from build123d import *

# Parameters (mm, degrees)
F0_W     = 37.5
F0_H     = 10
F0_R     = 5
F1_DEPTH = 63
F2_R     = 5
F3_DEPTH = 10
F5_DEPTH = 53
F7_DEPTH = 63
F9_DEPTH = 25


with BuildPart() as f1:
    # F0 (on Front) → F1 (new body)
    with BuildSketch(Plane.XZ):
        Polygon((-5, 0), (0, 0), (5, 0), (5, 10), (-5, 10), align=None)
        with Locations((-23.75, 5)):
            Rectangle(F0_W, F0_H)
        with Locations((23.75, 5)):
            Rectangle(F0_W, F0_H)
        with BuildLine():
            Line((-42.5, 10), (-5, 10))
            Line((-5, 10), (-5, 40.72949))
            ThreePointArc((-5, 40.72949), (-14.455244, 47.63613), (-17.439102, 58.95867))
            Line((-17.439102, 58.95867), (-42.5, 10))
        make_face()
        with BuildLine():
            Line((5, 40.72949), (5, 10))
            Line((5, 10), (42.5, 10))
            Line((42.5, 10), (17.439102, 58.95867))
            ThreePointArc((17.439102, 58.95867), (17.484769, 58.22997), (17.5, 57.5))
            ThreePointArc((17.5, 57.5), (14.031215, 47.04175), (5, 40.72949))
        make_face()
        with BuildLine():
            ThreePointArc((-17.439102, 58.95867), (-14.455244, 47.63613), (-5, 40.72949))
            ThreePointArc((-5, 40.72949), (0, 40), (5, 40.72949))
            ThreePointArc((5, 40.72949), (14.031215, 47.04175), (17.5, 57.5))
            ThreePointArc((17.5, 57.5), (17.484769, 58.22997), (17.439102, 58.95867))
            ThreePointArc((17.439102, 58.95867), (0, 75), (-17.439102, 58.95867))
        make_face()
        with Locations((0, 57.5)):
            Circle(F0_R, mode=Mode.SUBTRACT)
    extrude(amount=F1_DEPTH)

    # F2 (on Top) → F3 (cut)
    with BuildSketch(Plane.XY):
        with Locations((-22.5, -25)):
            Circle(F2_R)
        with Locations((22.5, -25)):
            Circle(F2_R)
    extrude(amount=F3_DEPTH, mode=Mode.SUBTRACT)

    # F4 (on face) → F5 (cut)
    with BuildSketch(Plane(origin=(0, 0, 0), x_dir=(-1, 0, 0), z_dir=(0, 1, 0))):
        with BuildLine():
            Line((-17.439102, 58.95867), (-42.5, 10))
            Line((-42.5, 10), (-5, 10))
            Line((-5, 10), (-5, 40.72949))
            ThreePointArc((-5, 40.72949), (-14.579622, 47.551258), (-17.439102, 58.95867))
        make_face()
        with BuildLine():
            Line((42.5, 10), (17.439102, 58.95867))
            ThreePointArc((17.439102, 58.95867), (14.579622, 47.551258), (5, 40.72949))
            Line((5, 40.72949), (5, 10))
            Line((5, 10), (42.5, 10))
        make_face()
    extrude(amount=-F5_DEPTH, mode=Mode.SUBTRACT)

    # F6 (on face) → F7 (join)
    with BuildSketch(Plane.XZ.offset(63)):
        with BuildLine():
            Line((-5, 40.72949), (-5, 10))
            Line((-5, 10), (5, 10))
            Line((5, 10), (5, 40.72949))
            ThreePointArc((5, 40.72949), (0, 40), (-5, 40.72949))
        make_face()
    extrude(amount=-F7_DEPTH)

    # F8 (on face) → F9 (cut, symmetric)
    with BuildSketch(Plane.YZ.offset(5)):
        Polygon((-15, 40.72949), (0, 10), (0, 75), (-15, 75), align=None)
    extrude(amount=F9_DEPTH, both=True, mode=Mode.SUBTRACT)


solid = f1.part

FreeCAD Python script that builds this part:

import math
import FreeCAD as App
import Part
import Sketcher

V = App.Vector
Q = App.Units.Quantity

doc = App.newDocument("Part")
body = doc.addObject("PartDesign::Body", "Body")

# Sketch on XZ plane
sketch1 = body.newObject("Sketcher::SketchObject", "Sketch")
sketch1.AttachmentSupport = (doc.getObject("XZ_Plane"), [""])
sketch1.MapMode = "FlatFace"
sketch1.addGeometry([
    Part.LineSegment(V(-42, 10, 0), V(-42, 0, 0)),  # 0
    Part.LineSegment(V(-42, 0, 0), V(42, 0, 0)),  # 1
    Part.LineSegment(V(42, 0, 0), V(42, 10, 0)),  # 2
    Part.LineSegment(V(42, 10, 0), V(17, 59, 0)),  # 3
    Part.ArcOfCircle(Part.Circle(V(0, 58, 0), V(0, 0, 1), 17), math.radians(5), math.radians(175)),  # 4
    Part.LineSegment(V(-17, 59, 0), V(-42, 10, 0)),  # 5
    Part.LineSegment(V(5, 41, 0), V(5, 10, 0)),  # 6
    Part.LineSegment(V(5, 10, 0), V(-5, 10, 0)),  # 7
    Part.LineSegment(V(-5, 10, 0), V(-5, 41, 0)),  # 8
    Part.ArcOfCircle(Part.Circle(V(0, 58, 0), V(0, 0, 1), 18), math.radians(-107), math.radians(-73)),  # 9
    Part.Circle(V(0, 58, 0), V(0, 0, 1), 5),  # 10
], False)
sketch1.addConstraint([
    Sketcher.Constraint("Coincident", 0, 2, 1, 1),
    Sketcher.Constraint("Coincident", 1, 2, 2, 1),
    Sketcher.Constraint("Coincident", 2, 2, 3, 1),
    Sketcher.Constraint("Coincident", 3, 2, 4, 1),
    Sketcher.Constraint("Coincident", 4, 2, 5, 1),
    Sketcher.Constraint("Coincident", 5, 2, 0, 1),
    Sketcher.Constraint("Coincident", 6, 2, 7, 1),
    Sketcher.Constraint("Coincident", 7, 2, 8, 1),
    Sketcher.Constraint("Coincident", 8, 2, 9, 1),
    Sketcher.Constraint("Coincident", 9, 2, 6, 1),
    Sketcher.Constraint("Vertical", 0),
    Sketcher.Constraint("Horizontal", 1),
    Sketcher.Constraint("Vertical", 2),
    Sketcher.Constraint("Vertical", 6),
    Sketcher.Constraint("Horizontal", 7),
    Sketcher.Constraint("Vertical", 8),
    Sketcher.Constraint("Coincident", 9, 3, 4, 3),
    Sketcher.Constraint("Coincident", 10, 3, 4, 3),
    Sketcher.Constraint("Symmetric", 0, 2, 1, 2, -1, 1),
    Sketcher.Constraint("Symmetric", 3, 2, 4, 2, -2),
    Sketcher.Constraint("Horizontal", 2, 2, 5, 2),
    Sketcher.Constraint("Horizontal", 5, 2, 6, 2),
    Sketcher.Constraint("Horizontal", 8, 2, 9, 2),
    Sketcher.Constraint("Equal", 7, 0),
    Sketcher.Constraint("Diameter", 10, Q("10 mm")),
    Sketcher.Constraint("Radius", 4, Q("17.5 mm")),
    Sketcher.Constraint("DistanceX", 1, 1, 1, 2, Q("85 mm")),
    Sketcher.Constraint("DistanceX", 7, 2, 7, 1, Q("10 mm")),
    Sketcher.Constraint("Distance", 3, Q("55 mm")),
    Sketcher.Constraint("DistanceY", -1, 1, 4, 3, Q("57.5 mm")),
    Sketcher.Constraint("Radius", 9, Q("17.500004 mm")),
])
pad1 = body.newObject("PartDesign::Pad", "Pad")
pad1.Profile = sketch1
pad1.Length = 63

# Sketch on XY plane
sketch2 = body.newObject("Sketcher::SketchObject", "Sketch001")
sketch2.AttachmentSupport = (doc.getObject("XY_Plane"), [""])
sketch2.MapMode = "FlatFace"
sketch2.addGeometry([
    Part.Circle(V(-22, -25, 0), V(0, 0, 1), 5),
    Part.Circle(V(22, -25, 0), V(0, 0, 1), 5),
], False)
sketch2.addConstraint([
    Sketcher.Constraint("Equal", 0, 1),
    Sketcher.Constraint("Symmetric", 0, 3, 1, 3, -2),
    Sketcher.Constraint("Diameter", 0, Q("10 mm")),
    Sketcher.Constraint("DistanceY", 0, 3, -1, 1, Q("25 mm")),
    Sketcher.Constraint("DistanceX", 0, 3, 1, 3, Q("45 mm")),
])
pocket1 = body.newObject("PartDesign::Pocket", "Pocket")
pocket1.Profile = sketch2
pocket1.Length = 10
pocket1.Reversed = True

# Sketch on XZ plane
sketch3 = body.newObject("Sketcher::SketchObject", "Sketch002")
sketch3.AttachmentSupport = (doc.getObject("XZ_Plane"), [""])
sketch3.MapMode = "FlatFace"
sketch3.addGeometry([
    Part.LineSegment(V(17, 59, 0), V(42, 10, 0)),  # 0
    Part.LineSegment(V(42, 10, 0), V(5, 10, 0)),  # 1
    Part.LineSegment(V(5, 10, 0), V(5, 41, 0)),  # 2
    Part.ArcOfCircle(Part.Circle(V(1, 57, 0), V(0, 0, 1), 17), math.radians(-75), math.radians(6)),  # 3
    Part.LineSegment(V(-42, 10, 0), V(-17, 59, 0)),  # 4
    Part.ArcOfCircle(Part.Circle(V(-1, 57, 0), V(0, 0, 1), 17), math.radians(174), math.radians(255)),  # 5
    Part.LineSegment(V(-5, 41, 0), V(-5, 10, 0)),  # 6
    Part.LineSegment(V(-5, 10, 0), V(-42, 10, 0)),  # 7
], False)
sketch3.addConstraint([
    Sketcher.Constraint("Coincident", 0, 2, 1, 1),
    Sketcher.Constraint("Coincident", 1, 2, 2, 1),
    Sketcher.Constraint("Coincident", 2, 2, 3, 1),
    Sketcher.Constraint("Coincident", 3, 2, 0, 1),
    Sketcher.Constraint("Coincident", 4, 2, 5, 1),
    Sketcher.Constraint("Coincident", 5, 2, 6, 1),
    Sketcher.Constraint("Coincident", 6, 2, 7, 1),
    Sketcher.Constraint("Coincident", 7, 2, 4, 1),
    Sketcher.Constraint("Horizontal", 1),
    Sketcher.Constraint("Vertical", 2),
    Sketcher.Constraint("Vertical", 6),
    Sketcher.Constraint("Horizontal", 7),
    Sketcher.Constraint("Equal", 3, 5),
    Sketcher.Constraint("Symmetric", 3, 3, 5, 3, -2),
    Sketcher.Constraint("Symmetric", 1, 2, 6, 2, -2),
    Sketcher.Constraint("Horizontal", 3, 2, 4, 2),
    Sketcher.Constraint("Equal", 1, 7),
    Sketcher.Constraint("Radius", 3, Q("17 mm")),
    Sketcher.Constraint("Distance", 0, Q("55 mm")),
    Sketcher.Constraint("DistanceX", 1, 2, 1, 1, Q("37.5 mm")),
    Sketcher.Constraint("DistanceY", -1, 1, 0, 2, Q("10 mm")),
    Sketcher.Constraint("DistanceX", -1, 1, 1, 2, Q("5 mm")),
    Sketcher.Constraint("DistanceY", 2, 1, 2, 2, Q("30.72949 mm")),
    Sketcher.Constraint("DistanceX", -1, 1, 3, 2, Q("17.439102 mm")),
])
pocket2 = body.newObject("PartDesign::Pocket", "Pocket001")
pocket2.Profile = sketch3
pocket2.Length = 53
pocket2.Reversed = True

# Sketch on XZ plane
sketch4 = body.newObject("Sketcher::SketchObject", "Sketch003")
sketch4.AttachmentSupport = (doc.getObject("XZ_Plane"), [""])
sketch4.MapMode = "FlatFace"
sketch4.AttachmentOffset = App.Placement(V(0, 0, 63), App.Rotation())
sketch4.addGeometry([
    Part.LineSegment(V(-5, 41, 0), V(-5, 10, 0)),
    Part.LineSegment(V(-5, 10, 0), V(5, 10, 0)),
    Part.LineSegment(V(5, 10, 0), V(5, 41, 0)),
    Part.ArcOfCircle(Part.Circle(V(0, 58, 0), V(0, 0, 1), 18), math.radians(-107), math.radians(-73)),
], False)
sketch4.addConstraint([
    Sketcher.Constraint("Coincident", 0, 2, 1, 1),
    Sketcher.Constraint("Coincident", 1, 2, 2, 1),
    Sketcher.Constraint("Coincident", 2, 2, 3, 2),
    Sketcher.Constraint("Coincident", 3, 1, 0, 1),
    Sketcher.Constraint("Vertical", 0),
    Sketcher.Constraint("Horizontal", 1),
    Sketcher.Constraint("Vertical", 2),
    Sketcher.Constraint("Symmetric", 2, 2, 3, 1, -2),
    Sketcher.Constraint("DistanceX", 1, 1, 1, 2, Q("10 mm")),
    Sketcher.Constraint("DistanceY", -1, 1, 0, 2, Q("10 mm")),
    Sketcher.Constraint("Radius", 3, Q("17.500004 mm")),
    Sketcher.Constraint("DistanceY", 0, 2, 0, 1, Q("30.72949 mm")),
])
pad2 = body.newObject("PartDesign::Pad", "Pad001")
pad2.Profile = sketch4
pad2.Length = 63
pad2.Reversed = True

# Sketch on YZ plane
sketch5 = body.newObject("Sketcher::SketchObject", "Sketch004")
sketch5.AttachmentSupport = (doc.getObject("YZ_Plane"), [""])
sketch5.MapMode = "FlatFace"
sketch5.AttachmentOffset = App.Placement(V(0, 0, 5), App.Rotation())
sketch5.addGeometry([
    Part.LineSegment(V(-15, 41, 0), V(0, 10, 0)),
    Part.LineSegment(V(0, 10, 0), V(0, 75, 0)),
    Part.LineSegment(V(0, 75, 0), V(-15, 75, 0)),
    Part.LineSegment(V(-15, 75, 0), V(-15, 41, 0)),
], False)
sketch5.addConstraint([
    Sketcher.Constraint("Coincident", 0, 2, 1, 1),
    Sketcher.Constraint("Coincident", 1, 2, 2, 1),
    Sketcher.Constraint("Coincident", 2, 2, 3, 1),
    Sketcher.Constraint("Coincident", 3, 2, 0, 1),
    Sketcher.Constraint("Vertical", 1),
    Sketcher.Constraint("Horizontal", 2),
    Sketcher.Constraint("Vertical", 3),
    Sketcher.Constraint("PointOnObject", 0, 2, -2),
    Sketcher.Constraint("DistanceX", 2, 2, 2, 1, Q("15 mm")),
    Sketcher.Constraint("DistanceY", 1, 1, 1, 2, Q("65 mm")),
    Sketcher.Constraint("DistanceY", -1, 1, 0, 2, Q("10 mm")),
    Sketcher.Constraint("DistanceY", 3, 2, 3, 1, Q("34.27051 mm")),
])
pocket3 = body.newObject("PartDesign::Pocket", "Pocket002")
pocket3.Profile = sketch5
pocket3.Length = 50
pocket3.Midplane = True

doc.recompute()
